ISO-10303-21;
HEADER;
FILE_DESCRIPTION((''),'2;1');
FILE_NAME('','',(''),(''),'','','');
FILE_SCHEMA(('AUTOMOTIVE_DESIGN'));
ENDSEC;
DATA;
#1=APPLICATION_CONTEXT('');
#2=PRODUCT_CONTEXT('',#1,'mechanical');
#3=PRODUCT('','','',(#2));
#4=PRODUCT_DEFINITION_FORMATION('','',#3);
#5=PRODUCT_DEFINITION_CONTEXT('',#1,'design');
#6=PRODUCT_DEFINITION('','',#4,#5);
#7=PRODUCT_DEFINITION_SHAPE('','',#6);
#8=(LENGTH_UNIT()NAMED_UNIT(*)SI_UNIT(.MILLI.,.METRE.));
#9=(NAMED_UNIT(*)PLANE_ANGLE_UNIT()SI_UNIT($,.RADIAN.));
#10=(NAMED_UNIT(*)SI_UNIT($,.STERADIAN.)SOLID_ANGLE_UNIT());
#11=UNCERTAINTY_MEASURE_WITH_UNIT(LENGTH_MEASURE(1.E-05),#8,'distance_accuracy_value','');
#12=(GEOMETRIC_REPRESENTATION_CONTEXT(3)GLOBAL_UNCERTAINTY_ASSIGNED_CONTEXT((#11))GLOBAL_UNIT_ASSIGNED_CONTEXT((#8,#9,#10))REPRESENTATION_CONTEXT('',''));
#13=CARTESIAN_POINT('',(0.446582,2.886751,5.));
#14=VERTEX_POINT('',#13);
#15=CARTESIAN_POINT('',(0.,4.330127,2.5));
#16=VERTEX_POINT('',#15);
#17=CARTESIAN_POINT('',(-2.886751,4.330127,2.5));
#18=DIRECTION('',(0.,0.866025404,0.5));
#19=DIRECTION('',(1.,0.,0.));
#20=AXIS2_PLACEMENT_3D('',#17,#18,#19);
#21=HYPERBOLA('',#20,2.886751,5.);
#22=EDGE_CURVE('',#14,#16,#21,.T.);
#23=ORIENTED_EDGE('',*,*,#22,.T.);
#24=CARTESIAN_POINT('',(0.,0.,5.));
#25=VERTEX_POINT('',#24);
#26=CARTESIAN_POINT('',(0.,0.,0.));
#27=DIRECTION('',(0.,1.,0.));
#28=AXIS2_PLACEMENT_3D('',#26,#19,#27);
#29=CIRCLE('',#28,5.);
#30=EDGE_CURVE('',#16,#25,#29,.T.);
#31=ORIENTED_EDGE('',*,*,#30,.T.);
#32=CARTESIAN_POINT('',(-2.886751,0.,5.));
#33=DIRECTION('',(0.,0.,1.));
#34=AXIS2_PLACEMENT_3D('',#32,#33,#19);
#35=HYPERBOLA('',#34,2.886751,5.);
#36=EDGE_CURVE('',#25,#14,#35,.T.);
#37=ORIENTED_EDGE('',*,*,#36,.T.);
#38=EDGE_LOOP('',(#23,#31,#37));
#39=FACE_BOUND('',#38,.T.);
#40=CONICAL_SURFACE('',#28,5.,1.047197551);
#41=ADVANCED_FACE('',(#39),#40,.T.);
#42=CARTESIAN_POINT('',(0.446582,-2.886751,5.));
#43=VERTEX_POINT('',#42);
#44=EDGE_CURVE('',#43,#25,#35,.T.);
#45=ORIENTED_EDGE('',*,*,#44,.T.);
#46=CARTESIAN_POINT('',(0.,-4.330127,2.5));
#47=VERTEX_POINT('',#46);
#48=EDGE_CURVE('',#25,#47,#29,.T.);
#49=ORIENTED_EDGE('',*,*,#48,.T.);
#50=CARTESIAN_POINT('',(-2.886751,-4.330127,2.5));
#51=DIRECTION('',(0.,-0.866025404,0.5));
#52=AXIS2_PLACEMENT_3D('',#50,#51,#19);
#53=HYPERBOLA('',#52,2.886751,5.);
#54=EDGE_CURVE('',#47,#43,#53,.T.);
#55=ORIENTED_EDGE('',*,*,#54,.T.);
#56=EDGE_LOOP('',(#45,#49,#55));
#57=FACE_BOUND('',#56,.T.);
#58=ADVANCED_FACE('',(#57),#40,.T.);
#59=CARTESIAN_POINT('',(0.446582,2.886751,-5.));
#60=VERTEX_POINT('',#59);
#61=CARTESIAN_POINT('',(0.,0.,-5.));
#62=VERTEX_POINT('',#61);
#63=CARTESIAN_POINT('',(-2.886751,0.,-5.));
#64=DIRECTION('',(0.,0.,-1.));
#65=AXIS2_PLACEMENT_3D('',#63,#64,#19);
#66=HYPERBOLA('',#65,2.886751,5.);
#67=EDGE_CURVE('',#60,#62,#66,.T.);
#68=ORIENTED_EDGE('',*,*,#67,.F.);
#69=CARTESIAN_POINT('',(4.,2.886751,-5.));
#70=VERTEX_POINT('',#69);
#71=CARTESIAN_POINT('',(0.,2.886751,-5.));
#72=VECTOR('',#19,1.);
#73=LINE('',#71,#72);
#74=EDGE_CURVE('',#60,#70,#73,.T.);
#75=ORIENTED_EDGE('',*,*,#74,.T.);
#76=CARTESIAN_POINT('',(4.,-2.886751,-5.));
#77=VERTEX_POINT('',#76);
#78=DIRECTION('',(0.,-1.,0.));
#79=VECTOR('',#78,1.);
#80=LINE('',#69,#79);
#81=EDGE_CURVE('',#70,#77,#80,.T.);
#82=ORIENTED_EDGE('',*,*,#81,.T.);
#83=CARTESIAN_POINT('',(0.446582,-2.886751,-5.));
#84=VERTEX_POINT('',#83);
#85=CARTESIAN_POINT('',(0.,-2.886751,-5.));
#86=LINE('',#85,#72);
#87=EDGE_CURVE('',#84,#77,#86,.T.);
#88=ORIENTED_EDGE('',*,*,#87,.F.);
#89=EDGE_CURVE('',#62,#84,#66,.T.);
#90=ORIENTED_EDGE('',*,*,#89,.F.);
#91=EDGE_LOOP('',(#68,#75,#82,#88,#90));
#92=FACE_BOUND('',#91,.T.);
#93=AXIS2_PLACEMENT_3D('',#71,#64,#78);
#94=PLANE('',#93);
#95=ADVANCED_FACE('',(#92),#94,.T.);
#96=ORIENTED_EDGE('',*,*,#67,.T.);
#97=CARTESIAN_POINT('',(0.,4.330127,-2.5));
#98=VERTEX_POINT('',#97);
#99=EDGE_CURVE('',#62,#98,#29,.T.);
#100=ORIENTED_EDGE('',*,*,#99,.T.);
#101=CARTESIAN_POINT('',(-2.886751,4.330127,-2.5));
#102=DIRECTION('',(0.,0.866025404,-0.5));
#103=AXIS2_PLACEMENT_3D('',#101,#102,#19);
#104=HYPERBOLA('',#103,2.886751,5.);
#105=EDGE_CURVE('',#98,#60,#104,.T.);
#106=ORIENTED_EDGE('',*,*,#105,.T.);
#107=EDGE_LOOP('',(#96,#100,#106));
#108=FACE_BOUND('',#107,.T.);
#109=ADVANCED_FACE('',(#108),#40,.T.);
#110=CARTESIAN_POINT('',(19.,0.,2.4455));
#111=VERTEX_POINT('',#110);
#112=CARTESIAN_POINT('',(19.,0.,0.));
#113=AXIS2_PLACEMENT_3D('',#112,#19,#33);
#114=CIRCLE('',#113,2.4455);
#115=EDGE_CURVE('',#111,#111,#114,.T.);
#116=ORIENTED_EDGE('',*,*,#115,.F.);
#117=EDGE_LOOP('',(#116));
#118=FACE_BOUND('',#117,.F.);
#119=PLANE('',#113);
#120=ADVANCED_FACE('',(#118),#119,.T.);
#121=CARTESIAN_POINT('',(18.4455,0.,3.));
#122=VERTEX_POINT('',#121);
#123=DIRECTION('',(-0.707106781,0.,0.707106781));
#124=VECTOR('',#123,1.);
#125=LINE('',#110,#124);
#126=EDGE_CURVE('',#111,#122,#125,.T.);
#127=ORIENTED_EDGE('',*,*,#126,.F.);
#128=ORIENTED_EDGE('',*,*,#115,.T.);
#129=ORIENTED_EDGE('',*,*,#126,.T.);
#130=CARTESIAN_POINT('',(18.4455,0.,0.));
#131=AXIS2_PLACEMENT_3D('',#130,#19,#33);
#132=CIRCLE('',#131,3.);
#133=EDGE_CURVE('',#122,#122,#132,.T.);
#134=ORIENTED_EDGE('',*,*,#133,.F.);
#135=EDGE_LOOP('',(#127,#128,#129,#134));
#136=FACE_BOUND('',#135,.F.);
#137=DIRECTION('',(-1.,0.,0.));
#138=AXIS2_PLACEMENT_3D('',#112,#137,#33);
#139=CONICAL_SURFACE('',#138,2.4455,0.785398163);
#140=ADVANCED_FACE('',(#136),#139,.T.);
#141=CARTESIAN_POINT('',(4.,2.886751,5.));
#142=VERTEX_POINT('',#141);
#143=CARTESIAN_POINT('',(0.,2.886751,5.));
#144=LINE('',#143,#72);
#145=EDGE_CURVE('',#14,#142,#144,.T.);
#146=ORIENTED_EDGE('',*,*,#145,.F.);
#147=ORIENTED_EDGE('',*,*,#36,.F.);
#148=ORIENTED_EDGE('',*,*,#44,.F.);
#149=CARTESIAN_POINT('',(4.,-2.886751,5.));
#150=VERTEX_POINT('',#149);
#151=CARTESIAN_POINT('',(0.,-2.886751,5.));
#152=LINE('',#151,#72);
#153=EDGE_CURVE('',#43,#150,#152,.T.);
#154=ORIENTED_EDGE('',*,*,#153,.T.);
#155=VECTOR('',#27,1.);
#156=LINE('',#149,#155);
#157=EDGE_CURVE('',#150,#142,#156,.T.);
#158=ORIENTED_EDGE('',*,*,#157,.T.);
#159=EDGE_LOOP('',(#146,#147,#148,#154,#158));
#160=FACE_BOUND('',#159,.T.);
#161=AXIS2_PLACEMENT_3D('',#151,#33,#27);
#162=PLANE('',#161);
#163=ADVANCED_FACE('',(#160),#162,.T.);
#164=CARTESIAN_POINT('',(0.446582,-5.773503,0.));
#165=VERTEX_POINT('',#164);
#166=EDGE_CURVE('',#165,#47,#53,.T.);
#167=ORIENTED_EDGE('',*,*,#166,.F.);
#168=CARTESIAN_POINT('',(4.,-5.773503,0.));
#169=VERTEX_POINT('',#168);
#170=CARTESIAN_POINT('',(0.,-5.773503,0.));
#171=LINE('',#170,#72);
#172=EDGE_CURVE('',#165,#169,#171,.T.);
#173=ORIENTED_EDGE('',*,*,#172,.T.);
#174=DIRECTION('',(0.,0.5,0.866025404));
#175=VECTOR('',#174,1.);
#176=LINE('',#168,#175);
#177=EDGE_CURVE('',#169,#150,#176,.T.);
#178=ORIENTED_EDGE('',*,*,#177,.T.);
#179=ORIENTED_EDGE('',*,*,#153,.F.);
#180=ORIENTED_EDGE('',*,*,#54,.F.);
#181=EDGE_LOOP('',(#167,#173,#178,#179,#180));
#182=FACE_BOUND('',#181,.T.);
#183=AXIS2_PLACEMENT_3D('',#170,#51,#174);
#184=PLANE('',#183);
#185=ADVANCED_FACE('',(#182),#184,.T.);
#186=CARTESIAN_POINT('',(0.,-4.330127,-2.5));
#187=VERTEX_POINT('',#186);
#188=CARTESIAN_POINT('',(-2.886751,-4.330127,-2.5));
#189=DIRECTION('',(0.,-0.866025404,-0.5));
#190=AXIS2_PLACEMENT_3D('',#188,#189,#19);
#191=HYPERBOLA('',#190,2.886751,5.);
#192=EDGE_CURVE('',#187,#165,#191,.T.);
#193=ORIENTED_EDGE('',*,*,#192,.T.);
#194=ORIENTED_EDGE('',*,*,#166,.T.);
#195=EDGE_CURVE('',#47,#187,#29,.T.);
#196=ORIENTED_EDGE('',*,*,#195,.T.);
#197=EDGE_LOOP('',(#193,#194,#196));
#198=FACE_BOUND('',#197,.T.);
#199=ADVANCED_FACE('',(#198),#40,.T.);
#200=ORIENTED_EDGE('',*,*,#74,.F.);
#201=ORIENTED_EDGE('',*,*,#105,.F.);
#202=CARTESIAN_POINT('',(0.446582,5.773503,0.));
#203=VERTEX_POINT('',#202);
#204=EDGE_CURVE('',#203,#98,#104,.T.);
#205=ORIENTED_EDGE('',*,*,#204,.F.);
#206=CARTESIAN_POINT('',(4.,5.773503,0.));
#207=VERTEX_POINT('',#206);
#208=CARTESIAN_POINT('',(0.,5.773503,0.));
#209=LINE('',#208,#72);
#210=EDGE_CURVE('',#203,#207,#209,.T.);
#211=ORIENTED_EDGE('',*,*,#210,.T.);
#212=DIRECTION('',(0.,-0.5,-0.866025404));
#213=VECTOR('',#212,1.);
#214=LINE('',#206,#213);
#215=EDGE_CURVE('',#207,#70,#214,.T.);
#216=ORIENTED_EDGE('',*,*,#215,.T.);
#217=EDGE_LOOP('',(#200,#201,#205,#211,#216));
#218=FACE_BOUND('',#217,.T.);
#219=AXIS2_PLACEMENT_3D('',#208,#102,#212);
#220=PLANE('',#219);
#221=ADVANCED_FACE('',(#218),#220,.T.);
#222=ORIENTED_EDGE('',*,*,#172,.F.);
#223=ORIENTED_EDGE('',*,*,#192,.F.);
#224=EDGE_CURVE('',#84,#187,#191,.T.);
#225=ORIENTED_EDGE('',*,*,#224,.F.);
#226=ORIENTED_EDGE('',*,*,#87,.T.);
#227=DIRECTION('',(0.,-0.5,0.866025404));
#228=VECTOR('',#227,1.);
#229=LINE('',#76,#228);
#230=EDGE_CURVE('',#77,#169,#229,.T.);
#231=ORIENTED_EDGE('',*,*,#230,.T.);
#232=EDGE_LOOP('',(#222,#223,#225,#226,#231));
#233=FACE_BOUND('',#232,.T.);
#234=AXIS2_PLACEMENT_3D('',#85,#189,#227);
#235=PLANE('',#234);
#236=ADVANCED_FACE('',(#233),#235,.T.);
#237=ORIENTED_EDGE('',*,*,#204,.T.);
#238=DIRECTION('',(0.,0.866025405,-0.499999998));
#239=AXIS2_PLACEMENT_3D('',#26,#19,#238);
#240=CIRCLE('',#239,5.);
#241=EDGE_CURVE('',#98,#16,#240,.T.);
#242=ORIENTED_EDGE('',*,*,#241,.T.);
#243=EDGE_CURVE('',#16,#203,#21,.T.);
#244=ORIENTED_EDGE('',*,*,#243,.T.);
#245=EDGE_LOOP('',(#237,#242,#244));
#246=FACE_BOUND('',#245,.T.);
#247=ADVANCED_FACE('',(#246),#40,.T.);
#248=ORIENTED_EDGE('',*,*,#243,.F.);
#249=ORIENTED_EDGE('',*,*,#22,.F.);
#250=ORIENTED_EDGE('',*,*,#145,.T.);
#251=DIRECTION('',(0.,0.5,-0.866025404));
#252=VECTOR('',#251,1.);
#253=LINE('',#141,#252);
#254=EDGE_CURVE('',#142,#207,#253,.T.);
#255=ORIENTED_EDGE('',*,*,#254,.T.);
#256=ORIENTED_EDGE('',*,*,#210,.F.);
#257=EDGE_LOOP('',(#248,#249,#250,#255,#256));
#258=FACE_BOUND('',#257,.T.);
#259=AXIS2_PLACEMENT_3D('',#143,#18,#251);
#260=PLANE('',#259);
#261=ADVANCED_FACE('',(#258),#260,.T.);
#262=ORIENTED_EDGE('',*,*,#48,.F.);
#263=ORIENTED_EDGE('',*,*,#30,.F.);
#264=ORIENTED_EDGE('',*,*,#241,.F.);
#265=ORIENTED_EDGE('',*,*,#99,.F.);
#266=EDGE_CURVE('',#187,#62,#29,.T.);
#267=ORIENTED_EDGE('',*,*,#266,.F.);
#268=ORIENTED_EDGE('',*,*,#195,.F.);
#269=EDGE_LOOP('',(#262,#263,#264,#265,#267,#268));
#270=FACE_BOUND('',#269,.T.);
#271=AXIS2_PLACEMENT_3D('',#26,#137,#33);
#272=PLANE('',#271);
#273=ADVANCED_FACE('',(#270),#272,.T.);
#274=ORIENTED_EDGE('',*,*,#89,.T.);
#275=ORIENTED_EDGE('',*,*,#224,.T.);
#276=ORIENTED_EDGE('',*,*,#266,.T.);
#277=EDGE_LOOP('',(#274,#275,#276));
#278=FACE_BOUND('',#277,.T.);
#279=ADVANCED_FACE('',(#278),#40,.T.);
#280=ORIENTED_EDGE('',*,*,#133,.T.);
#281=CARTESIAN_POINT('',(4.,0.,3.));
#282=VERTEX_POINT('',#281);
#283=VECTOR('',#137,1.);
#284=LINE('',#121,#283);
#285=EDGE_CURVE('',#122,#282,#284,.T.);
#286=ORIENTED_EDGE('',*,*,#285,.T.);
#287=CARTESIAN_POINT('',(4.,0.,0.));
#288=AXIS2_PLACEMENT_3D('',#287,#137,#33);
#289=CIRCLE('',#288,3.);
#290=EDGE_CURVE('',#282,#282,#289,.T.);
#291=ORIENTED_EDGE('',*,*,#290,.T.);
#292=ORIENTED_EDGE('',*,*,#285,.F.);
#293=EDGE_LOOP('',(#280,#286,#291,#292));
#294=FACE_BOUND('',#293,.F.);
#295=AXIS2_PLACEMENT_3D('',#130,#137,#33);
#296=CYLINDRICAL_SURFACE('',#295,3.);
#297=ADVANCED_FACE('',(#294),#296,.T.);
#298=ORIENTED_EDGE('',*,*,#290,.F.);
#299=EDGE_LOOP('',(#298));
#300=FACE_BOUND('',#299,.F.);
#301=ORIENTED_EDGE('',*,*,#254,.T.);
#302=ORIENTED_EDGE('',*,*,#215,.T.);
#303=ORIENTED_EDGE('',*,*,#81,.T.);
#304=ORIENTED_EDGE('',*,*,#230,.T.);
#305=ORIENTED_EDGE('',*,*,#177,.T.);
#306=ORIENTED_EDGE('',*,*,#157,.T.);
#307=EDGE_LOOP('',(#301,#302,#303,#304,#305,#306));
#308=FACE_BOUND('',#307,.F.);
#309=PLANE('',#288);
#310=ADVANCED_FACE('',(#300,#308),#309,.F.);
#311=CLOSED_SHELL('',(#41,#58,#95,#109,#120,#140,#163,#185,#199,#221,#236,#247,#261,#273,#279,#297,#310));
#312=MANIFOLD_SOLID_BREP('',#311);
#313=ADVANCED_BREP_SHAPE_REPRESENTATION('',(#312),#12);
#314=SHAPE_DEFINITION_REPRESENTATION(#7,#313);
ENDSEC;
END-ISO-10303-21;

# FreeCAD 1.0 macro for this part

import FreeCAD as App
import Part
import Sketcher
from FreeCAD import Vector
Q = App.Units.Quantity

doc = App.newDocument("Part")
params = doc.addObject("Spreadsheet::Sheet", "Params")
for row, (alias, value) in enumerate([
    ("pad1_length", "4 mm"),
    ("sketch2_width", "19 mm"),
    ("sketch2_height", "3 mm"),
    ("revolution_angle", "360 deg"),
    ("sketch3_width", "10 mm"),
    ("sketch3_height", "5 mm"),
    ("groove_angle", "360 deg"),
], start=1):
    params.set(f"A{row}", alias)
    params.set(f"B{row}", "=" + value)
    params.setAlias(f"B{row}", alias)

body = doc.addObject("PartDesign::Body", "Body")

# Sketch on YZ plane
sketch1 = body.newObject("Sketcher::SketchObject", "Sketch")
sketch1.AttachmentSupport = (doc.getObject("YZ_Plane"), [""])
sketch1.MapMode = "FlatFace"
sketch1.addGeometry(Part.LineSegment(Vector(-3, -5, 0), Vector(3, -5, 0)), False)
sketch1.addGeometry(Part.LineSegment(Vector(3, -5, 0), Vector(6, 0, 0)), False)
sketch1.addGeometry(Part.LineSegment(Vector(6, 0, 0), Vector(3, 5, 0)), False)
sketch1.addGeometry(Part.LineSegment(Vector(3, 5, 0), Vector(-3, 5, 0)), False)
sketch1.addGeometry(Part.LineSegment(Vector(-3, 5, 0), Vector(-6, 0, 0)), False)
sketch1.addGeometry(Part.LineSegment(Vector(-6, 0, 0), Vector(-3, -5, 0)), False)
sketch1.addConstraint(Sketcher.Constraint("Coincident", 0, 2, 1, 1))
sketch1.addConstraint(Sketcher.Constraint("Coincident", 1, 2, 2, 1))
sketch1.addConstraint(Sketcher.Constraint("Coincident", 2, 2, 3, 1))
sketch1.addConstraint(Sketcher.Constraint("Coincident", 3, 2, 4, 1))
sketch1.addConstraint(Sketcher.Constraint("Coincident", 4, 2, 5, 1))
sketch1.addConstraint(Sketcher.Constraint("Coincident", 5, 2, 0, 1))
sketch1.addConstraint(Sketcher.Constraint("Horizontal", 0))
sketch1.addConstraint(Sketcher.Constraint("Horizontal", 3))
sketch1.addConstraint(Sketcher.Constraint("Symmetric", 0, 2, 3, 2, -1, 1))
sketch1.addConstraint(Sketcher.Constraint("Symmetric", 1, 2, 4, 2, -1, 1))
sketch1.addConstraint(Sketcher.Constraint("PointOnObject", 1, 2, -1))
sketch1.addConstraint(Sketcher.Constraint("Parallel", 2, 5))
sketch1.addConstraint(Sketcher.Constraint("Vertical", 0, 2, 2, 2))
sketch1.addConstraint(Sketcher.Constraint("Angle", 1, Q("60 deg")))
sketch1.addConstraint(Sketcher.Constraint("DistanceY", 0, 2, -1, 1, 5.0))
sketch1.addConstraint(Sketcher.Constraint("DistanceX", 0, 1, 0, 2, 5.773503))
pad1 = body.newObject("PartDesign::Pad", "Pad")
pad1.Profile = sketch1
pad1.setExpression("Length", "Params.pad1_length")

# Sketch on XY plane
sketch2 = body.newObject("Sketcher::SketchObject", "Sketch001")
sketch2.AttachmentSupport = (doc.getObject("XY_Plane"), [""])
sketch2.MapMode = "FlatFace"
sketch2.addGeometry(Part.LineSegment(Vector(0, 0, 0), Vector(19, 0, 0)), False)
sketch2.addGeometry(Part.LineSegment(Vector(19, 0, 0), Vector(19, 2.4, 0)), False)
sketch2.addGeometry(Part.LineSegment(Vector(19, 2.4, 0), Vector(18.4, 3, 0)), False)
sketch2.addGeometry(Part.LineSegment(Vector(18.4, 3, 0), Vector(0, 3, 0)), False)
sketch2.addGeometry(Part.LineSegment(Vector(0, 3, 0), Vector(0, 0, 0)), False)
sketch2.addConstraint(Sketcher.Constraint("Coincident", 0, 2, 1, 1))
sketch2.addConstraint(Sketcher.Constraint("Coincident", 1, 2, 2, 1))
sketch2.addConstraint(Sketcher.Constraint("Coincident", 2, 2, 3, 1))
sketch2.addConstraint(Sketcher.Constraint("Coincident", 3, 2, 4, 1))
sketch2.addConstraint(Sketcher.Constraint("Coincident", 4, 2, 0, 1))
sketch2.addConstraint(Sketcher.Constraint("Horizontal", 0))
sketch2.addConstraint(Sketcher.Constraint("Vertical", 1))
sketch2.addConstraint(Sketcher.Constraint("Horizontal", 3))
sketch2.addConstraint(Sketcher.Constraint("Vertical", 4))
sketch2.addConstraint(Sketcher.Constraint("Coincident", 4, 2, -1, 1))
sketch2.addConstraint(Sketcher.Constraint("DistanceX", 0, 1, 0, 2, 19.0))
sketch2.addConstraint(Sketcher.Constraint("DistanceY", 4, 2, 4, 1, 3.0))
sketch2.addConstraint(Sketcher.Constraint("Angle", 2, Q("135 deg")))
sketch2.addConstraint(Sketcher.Constraint("DistanceX", 3, 2, 3, 1, 18.4455))
sketch2.setExpression("Constraints[10]", "Params.sketch2_width")
sketch2.setExpression("Constraints[11]", "Params.sketch2_height")
revolution = body.newObject("PartDesign::Revolution", "Revolution")
revolution.Profile = sketch2
revolution.ReferenceAxis = (sketch2, ["H_Axis"])
revolution.setExpression("Angle", "Params.revolution_angle")

# Sketch on XY plane
sketch3 = body.newObject("Sketcher::SketchObject", "Sketch002")
sketch3.AttachmentSupport = (doc.getObject("XY_Plane"), [""])
sketch3.MapMode = "FlatFace"
sketch3.addGeometry(Part.LineSegment(Vector(0, 5, 0), Vector(3, 11, 0)), False)
sketch3.addGeometry(Part.LineSegment(Vector(3, 11, 0), Vector(3, 16, 0)), False)
sketch3.addGeometry(Part.LineSegment(Vector(3, 16, 0), Vector(-10, 16, 0)), False)
sketch3.addGeometry(Part.LineSegment(Vector(-10, 16, 0), Vector(-10, 5, 0)), False)
sketch3.addGeometry(Part.LineSegment(Vector(-10, 5, 0), Vector(0, 5, 0)), False)
sketch3.addConstraint(Sketcher.Constraint("Coincident", 0, 2, 1, 1))
sketch3.addConstraint(Sketcher.Constraint("Coincident", 1, 2, 2, 1))
sketch3.addConstraint(Sketcher.Constraint("Coincident", 2, 2, 3, 1))
sketch3.addConstraint(Sketcher.Constraint("Coincident", 3, 2, 4, 1))
sketch3.addConstraint(Sketcher.Constraint("Coincident", 4, 2, 0, 1))
sketch3.addConstraint(Sketcher.Constraint("Vertical", 1))
sketch3.addConstraint(Sketcher.Constraint("Horizontal", 2))
sketch3.addConstraint(Sketcher.Constraint("Vertical", 3))
sketch3.addConstraint(Sketcher.Constraint("Horizontal", 4))
sketch3.addConstraint(Sketcher.Constraint("PointOnObject", 4, 2, -2))
sketch3.addConstraint(Sketcher.Constraint("DistanceX", 4, 1, 4, 2, 10.0))
sketch3.addConstraint(Sketcher.Constraint("DistanceY", 1, 1, 1, 2, 5.0))
sketch3.addConstraint(Sketcher.Constraint("Angle", 0, Q("60 deg")))
sketch3.addConstraint(Sketcher.Constraint("DistanceY", -1, 1, 3, 2, 5.0))
sketch3.addConstraint(Sketcher.Constraint("DistanceX", 2, 2, 2, 1, 13.333333))
sketch3.setExpression("Constraints[10]", "Params.sketch3_width")
sketch3.setExpression("Constraints[11]", "Params.sketch3_height")
groove = body.newObject("PartDesign::Groove", "Groove")
groove.Profile = sketch3
groove.ReferenceAxis = (sketch3, ["H_Axis"])
groove.setExpression("Angle", "Params.groove_angle")

doc.recompute()
